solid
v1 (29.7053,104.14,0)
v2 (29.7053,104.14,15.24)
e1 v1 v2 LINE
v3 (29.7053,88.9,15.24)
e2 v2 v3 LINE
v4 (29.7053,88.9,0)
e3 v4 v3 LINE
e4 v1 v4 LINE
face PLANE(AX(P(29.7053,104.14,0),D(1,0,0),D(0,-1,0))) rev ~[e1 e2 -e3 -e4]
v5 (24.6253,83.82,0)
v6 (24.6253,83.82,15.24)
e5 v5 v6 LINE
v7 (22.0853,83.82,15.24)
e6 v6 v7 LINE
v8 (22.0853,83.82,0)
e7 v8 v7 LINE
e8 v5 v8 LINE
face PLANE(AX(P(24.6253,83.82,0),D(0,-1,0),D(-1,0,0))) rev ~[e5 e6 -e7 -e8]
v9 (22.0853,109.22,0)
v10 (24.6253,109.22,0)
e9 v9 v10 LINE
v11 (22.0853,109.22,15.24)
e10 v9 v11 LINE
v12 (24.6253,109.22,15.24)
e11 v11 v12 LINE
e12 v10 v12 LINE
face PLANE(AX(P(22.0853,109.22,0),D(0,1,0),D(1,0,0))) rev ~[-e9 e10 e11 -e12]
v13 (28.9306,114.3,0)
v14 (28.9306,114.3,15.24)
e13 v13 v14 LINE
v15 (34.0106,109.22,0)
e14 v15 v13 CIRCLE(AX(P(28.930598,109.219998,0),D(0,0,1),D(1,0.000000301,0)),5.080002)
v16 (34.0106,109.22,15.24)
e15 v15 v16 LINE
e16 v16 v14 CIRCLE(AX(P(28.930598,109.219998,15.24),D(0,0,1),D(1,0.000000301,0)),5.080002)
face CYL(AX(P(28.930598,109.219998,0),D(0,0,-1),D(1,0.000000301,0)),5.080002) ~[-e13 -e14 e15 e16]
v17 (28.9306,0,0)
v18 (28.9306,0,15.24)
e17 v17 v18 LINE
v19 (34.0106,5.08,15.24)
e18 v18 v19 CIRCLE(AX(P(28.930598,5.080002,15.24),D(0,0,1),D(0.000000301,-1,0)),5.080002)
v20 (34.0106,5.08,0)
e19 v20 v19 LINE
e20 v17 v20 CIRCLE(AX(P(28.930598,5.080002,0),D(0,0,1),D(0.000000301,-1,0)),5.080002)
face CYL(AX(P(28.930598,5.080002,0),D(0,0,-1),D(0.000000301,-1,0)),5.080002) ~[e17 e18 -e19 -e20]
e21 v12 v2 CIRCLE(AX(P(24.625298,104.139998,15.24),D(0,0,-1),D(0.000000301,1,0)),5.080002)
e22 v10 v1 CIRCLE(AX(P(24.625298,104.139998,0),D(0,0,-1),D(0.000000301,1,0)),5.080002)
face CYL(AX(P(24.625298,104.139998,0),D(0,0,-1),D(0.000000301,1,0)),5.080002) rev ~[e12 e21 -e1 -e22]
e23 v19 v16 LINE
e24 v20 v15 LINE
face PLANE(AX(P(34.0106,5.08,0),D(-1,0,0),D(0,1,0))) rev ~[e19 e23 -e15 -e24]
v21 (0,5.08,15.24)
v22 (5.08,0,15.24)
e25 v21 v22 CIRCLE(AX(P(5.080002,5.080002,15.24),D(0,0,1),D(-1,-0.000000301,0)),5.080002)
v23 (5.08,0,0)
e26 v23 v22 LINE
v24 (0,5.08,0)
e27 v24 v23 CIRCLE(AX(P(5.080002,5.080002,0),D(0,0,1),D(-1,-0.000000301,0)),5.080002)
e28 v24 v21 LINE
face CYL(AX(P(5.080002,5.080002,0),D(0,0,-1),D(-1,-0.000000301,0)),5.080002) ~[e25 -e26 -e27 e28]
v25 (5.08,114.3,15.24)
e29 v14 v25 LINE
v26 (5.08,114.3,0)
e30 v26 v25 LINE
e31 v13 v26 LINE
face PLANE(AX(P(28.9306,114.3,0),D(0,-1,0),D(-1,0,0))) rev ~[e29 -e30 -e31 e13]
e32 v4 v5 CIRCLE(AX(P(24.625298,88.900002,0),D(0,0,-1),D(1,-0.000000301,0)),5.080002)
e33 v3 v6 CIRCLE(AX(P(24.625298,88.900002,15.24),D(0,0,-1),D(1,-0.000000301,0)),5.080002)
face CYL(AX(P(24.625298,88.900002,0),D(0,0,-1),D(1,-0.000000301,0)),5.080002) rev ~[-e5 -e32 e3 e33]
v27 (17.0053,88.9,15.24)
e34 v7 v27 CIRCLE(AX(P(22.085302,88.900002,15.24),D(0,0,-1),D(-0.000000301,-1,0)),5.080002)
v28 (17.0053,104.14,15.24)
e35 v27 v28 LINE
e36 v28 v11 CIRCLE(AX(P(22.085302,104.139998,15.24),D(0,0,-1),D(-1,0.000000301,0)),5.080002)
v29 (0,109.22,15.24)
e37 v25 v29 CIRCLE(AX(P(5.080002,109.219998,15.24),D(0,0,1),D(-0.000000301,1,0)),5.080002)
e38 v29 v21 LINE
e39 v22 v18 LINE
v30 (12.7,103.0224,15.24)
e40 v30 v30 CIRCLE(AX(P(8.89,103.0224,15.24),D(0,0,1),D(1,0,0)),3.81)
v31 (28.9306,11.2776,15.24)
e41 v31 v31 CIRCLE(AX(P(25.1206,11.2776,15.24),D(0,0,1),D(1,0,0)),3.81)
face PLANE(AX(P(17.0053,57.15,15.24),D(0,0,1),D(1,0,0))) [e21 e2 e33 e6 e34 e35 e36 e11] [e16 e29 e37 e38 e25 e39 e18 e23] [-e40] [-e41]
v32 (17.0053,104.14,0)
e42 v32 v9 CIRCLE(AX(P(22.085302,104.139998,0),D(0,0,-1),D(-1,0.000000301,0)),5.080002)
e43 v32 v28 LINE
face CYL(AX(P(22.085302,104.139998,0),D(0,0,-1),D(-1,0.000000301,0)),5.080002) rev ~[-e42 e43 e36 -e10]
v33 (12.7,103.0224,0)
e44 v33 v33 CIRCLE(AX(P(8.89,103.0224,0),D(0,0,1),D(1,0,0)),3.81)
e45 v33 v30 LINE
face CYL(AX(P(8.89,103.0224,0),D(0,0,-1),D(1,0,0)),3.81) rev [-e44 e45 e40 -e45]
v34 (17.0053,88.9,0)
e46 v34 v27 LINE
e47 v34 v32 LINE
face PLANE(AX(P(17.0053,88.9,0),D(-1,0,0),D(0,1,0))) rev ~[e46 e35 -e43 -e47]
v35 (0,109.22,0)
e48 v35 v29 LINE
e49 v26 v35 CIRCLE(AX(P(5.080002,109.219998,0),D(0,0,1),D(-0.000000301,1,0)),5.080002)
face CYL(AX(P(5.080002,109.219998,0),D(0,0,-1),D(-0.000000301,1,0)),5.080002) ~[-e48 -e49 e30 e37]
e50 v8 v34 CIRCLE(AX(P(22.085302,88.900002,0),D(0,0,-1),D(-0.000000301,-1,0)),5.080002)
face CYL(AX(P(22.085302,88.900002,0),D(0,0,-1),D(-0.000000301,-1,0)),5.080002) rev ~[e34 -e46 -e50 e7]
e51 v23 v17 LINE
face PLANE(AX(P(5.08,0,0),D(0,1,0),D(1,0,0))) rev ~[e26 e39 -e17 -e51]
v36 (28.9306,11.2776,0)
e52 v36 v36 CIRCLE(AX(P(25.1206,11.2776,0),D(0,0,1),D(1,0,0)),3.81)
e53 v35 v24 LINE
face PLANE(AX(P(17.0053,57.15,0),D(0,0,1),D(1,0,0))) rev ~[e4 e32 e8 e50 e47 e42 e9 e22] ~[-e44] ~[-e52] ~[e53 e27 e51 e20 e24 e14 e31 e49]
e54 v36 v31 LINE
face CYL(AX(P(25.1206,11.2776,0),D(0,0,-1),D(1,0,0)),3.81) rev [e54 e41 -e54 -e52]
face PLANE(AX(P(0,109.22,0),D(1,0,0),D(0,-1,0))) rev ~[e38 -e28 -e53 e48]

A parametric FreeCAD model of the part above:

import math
import FreeCAD as App
import Part
import Sketcher
from FreeCAD import Vector
Q = App.Units.Quantity

doc = App.newDocument("Part")
params = doc.addObject("Spreadsheet::Sheet", "Params")
for row, (alias, value) in enumerate([
    ("sketch1_diameter", "0.3 in"),
    ("sketch1_radius", "0.2000001 in"),
    ("sketch1_width", "0.1 in"),
    ("sketch1_height", "4.1 in"),
    ("sketch1_height2", "0.6 in"),
    ("pad1_length", "0.6 in"),
], start=1):
    params.set(f"A{row}", alias)
    params.set(f"B{row}", "=" + value)
    params.setAlias(f"B{row}", alias)

body = doc.addObject("PartDesign::Body", "Body")

# Sketch on XY plane
sketch1 = doc.addObject("Sketcher::SketchObject", "Sketch")
body.addObject(sketch1)
sketch1.AttachmentSupport = (doc.XY_Plane, [""])
sketch1.MapMode = "FlatFace"
sketch1.addGeometry([
    Part.ArcOfCircle(Part.Circle(Vector(5.1, 5.1, 0), Vector(0, 0, 1), 5.1), math.radians(-180), math.radians(-90)),  # 0
    Part.LineSegment(Vector(5.1, 0, 0), Vector(28.9, 0, 0)),  # 1
    Part.ArcOfCircle(Part.Circle(Vector(28.9, 5.1, 0), Vector(0, 0, 1), 5.1), math.radians(-90), math.radians(0)),  # 2
    Part.LineSegment(Vector(34, 5.1, 0), Vector(34, 109.2, 0)),  # 3
    Part.ArcOfCircle(Part.Circle(Vector(28.9, 109.2, 0), Vector(0, 0, 1), 5.1), math.radians(0), math.radians(90)),  # 4
    Part.LineSegment(Vector(28.9, 114.3, 0), Vector(5.1, 114.3, 0)),  # 5
    Part.ArcOfCircle(Part.Circle(Vector(5.1, 109.2, 0), Vector(0, 0, 1), 5.1), math.radians(90), math.radians(180)),  # 6
    Part.LineSegment(Vector(0, 109.2, 0), Vector(0, 5.1, 0)),  # 7
    Part.Circle(Vector(25.1, 11.3, 0), Vector(0, 0, 1), 3.8),  # 8
    Part.Circle(Vector(8.9, 103, 0), Vector(0, 0, 1), 3.8),  # 9
    Part.LineSegment(Vector(17, 88.9, 0), Vector(17, 104.1, 0)),  # 10
    Part.ArcOfCircle(Part.Circle(Vector(22.1, 104.1, 0), Vector(0, 0, 1), 5.1), math.radians(90), math.radians(180)),  # 11
    Part.LineSegment(Vector(22.1, 109.2, 0), Vector(24.6, 109.2, 0)),  # 12
    Part.ArcOfCircle(Part.Circle(Vector(24.6, 104.1, 0), Vector(0, 0, 1), 5.1), math.radians(0), math.radians(90)),  # 13
    Part.LineSegment(Vector(29.7, 104.1, 0), Vector(29.7, 88.9, 0)),  # 14
    Part.ArcOfCircle(Part.Circle(Vector(24.6, 88.9, 0), Vector(0, 0, 1), 5.1), math.radians(-90), math.radians(0)),  # 15
    Part.LineSegment(Vector(24.6, 83.8, 0), Vector(22.1, 83.8, 0)),  # 16
    Part.ArcOfCircle(Part.Circle(Vector(22.1, 88.9, 0), Vector(0, 0, 1), 5.1), math.radians(-180), math.radians(-90)),  # 17
], False)
sketch1.addConstraint([
    Sketcher.Constraint("Tangent", 0, 2, 1, 1),
    Sketcher.Constraint("Tangent", 1, 2, 2, 1),
    Sketcher.Constraint("Tangent", 2, 2, 3, 1),
    Sketcher.Constraint("Tangent", 3, 2, 4, 1),
    Sketcher.Constraint("Tangent", 4, 2, 5, 1),
    Sketcher.Constraint("Tangent", 5, 2, 6, 1),
    Sketcher.Constraint("Tangent", 6, 2, 7, 1),
    Sketcher.Constraint("Tangent", 7, 2, 0, 1),
    Sketcher.Constraint("Tangent", 10, 2, 11, 2),
    Sketcher.Constraint("Tangent", 11, 1, 12, 1),
    Sketcher.Constraint("Tangent", 12, 2, 13, 2),
    Sketcher.Constraint("Tangent", 13, 1, 14, 1),
    Sketcher.Constraint("Tangent", 14, 2, 15, 2),
    Sketcher.Constraint("Tangent", 15, 1, 16, 1),
    Sketcher.Constraint("Tangent", 16, 2, 17, 2),
    Sketcher.Constraint("Tangent", 17, 1, 10, 1),
    Sketcher.Constraint("Horizontal", 1),
    Sketcher.Constraint("Vertical", 3),
    Sketcher.Constraint("Horizontal", 5),
    Sketcher.Constraint("Vertical", 7),
    Sketcher.Constraint("Vertical", 10),
    Sketcher.Constraint("Horizontal", 12),
    Sketcher.Constraint("Vertical", 14),
    Sketcher.Constraint("Horizontal", 16),
    Sketcher.Constraint("Equal", 0, 2),
    Sketcher.Constraint("Equal", 2, 4),
    Sketcher.Constraint("Equal", 4, 6),
    Sketcher.Constraint("Equal", 8, 9),
    Sketcher.Constraint("Equal", 6, 11),
    Sketcher.Constraint("Equal", 11, 13),
    Sketcher.Constraint("Equal", 13, 15),
    Sketcher.Constraint("Equal", 15, 17),
    Sketcher.Constraint("PointOnObject", 0, 2, -1),
    Sketcher.Constraint("PointOnObject", 6, 2, -2),
    Sketcher.Constraint("Horizontal", 6, 2, 11, 1),
    Sketcher.Constraint("Diameter", 8, Q("0.3 in")),
    Sketcher.Constraint("Radius", 0, Q("0.2000001 in")),
    Sketcher.Constraint("DistanceX", 12, 1, 12, 2, Q("0.1 in")),
    Sketcher.Constraint("DistanceY", 3, 1, 3, 2, Q("4.1 in")),
    Sketcher.Constraint("DistanceY", 10, 1, 10, 2, Q("0.6 in")),
    Sketcher.Constraint("DistanceX", 1, 1, 1, 2, Q("0.939 in")),
    Sketcher.Constraint("DistanceX", -1, 1, 9, 3, Q("0.35 in")),
    Sketcher.Constraint("DistanceX", 8, 3, 2, 3, Q("0.1499999 in")),
    Sketcher.Constraint("DistanceY", -1, 1, 8, 3, Q("0.444 in")),
    Sketcher.Constraint("DistanceY", -1, 1, 9, 3, Q("4.056 in")),
    Sketcher.Constraint("DistanceX", -1, 1, 11, 3, Q("0.8695001 in")),
])
sketch1.setExpression("Constraints[35]", "Params.sketch1_diameter")
sketch1.setExpression("Constraints[36]", "Params.sketch1_radius")
sketch1.setExpression("Constraints[37]", "Params.sketch1_width")
sketch1.setExpression("Constraints[38]", "Params.sketch1_height")
sketch1.setExpression("Constraints[39]", "Params.sketch1_height2")
pad1 = doc.addObject("PartDesign::Pad", "Pad")
body.addObject(pad1)
pad1.Profile = sketch1
pad1.setExpression("Length", "Params.pad1_length")

doc.recompute()
